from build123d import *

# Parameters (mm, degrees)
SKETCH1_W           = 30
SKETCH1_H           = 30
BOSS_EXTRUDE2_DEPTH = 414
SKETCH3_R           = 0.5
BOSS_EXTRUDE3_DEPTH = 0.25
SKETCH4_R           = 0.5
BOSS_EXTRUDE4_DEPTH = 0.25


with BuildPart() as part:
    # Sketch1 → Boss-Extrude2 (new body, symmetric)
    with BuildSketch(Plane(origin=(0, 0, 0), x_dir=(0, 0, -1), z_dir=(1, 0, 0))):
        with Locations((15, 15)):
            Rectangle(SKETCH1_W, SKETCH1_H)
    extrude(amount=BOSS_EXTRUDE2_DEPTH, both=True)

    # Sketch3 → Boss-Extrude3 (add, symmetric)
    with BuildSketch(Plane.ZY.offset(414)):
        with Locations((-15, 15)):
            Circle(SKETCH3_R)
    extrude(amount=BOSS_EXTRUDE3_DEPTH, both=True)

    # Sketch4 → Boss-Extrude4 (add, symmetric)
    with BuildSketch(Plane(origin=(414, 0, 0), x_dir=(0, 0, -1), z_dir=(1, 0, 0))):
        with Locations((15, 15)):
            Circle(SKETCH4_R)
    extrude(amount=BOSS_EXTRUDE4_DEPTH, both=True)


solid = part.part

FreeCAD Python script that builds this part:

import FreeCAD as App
import Part
import Sketcher

V = App.Vector
Q = App.Units.Quantity


def add_polygon(sketch, points):
    """Adds a closed chain of lines whose ends are joined by coincident constraints."""
    first, n = sketch.GeometryCount, len(points)
    for a, b in zip(points, points[1:] + points[:1]):
        sketch.addGeometry(Part.LineSegment(App.Vector(*a, 0), App.Vector(*b, 0)), False)
    for i in range(n):
        sketch.addConstraint(Sketcher.Constraint("Coincident", first + i, 2, first + (i + 1) % n, 1))

doc = App.newDocument("Part")
params = doc.addObject("Spreadsheet::Sheet", "Params")
for row, (alias, value) in enumerate([
    ("sketch1_width", "30 mm"),
    ("pad1_length", "828 mm"),
    ("sketch2_diameter", "1 mm"),
    ("pad2_length", "0.5 mm"),
    ("sketch3_diameter", "1 mm"),
    ("pad3_length", "0.5 mm"),
], start=1):
    params.set(f"A{row}", alias)
    params.set(f"B{row}", "=" + value)
    params.setAlias(f"B{row}", alias)

body = doc.addObject("PartDesign::Body", "Body")

sketch1 = doc.addObject("Sketcher::SketchObject", "Sketch")
body.addObject(sketch1)
sketch1.AttachmentSupport = (doc.YZ_Plane, [""])
sketch1.MapMode = "FlatFace"
add_polygon(sketch1, [(30, 0), (0, 0), (0, -30), (30, -30)])
sketch1.addConstraint(Sketcher.Constraint("Horizontal", 0))
sketch1.addConstraint(Sketcher.Constraint("Vertical", 1))
sketch1.addConstraint(Sketcher.Constraint("Horizontal", 2))
sketch1.addConstraint(Sketcher.Constraint("Vertical", 3))
sketch1.addConstraint(Sketcher.Constraint("Coincident", 0, 2, -1, 1))
sketch1.addConstraint(Sketcher.Constraint("Equal", 2, 1))
sketch1.addConstraint(Sketcher.Constraint("DistanceX", 0, 2, 0, 1, Q("30 mm")))
sketch1.setExpression("Constraints[10]", "Params.sketch1_width")
pad1 = doc.addObject("PartDesign::Pad", "Pad")
body.addObject(pad1)
pad1.Profile = sketch1
pad1.setExpression("Length", "Params.pad1_length")
pad1.Midplane = True

sketch2 = doc.addObject("Sketcher::SketchObject", "Sketch001")
body.addObject(sketch2)
sketch2.AttachmentSupport = (doc.YZ_Plane, [""])
sketch2.MapMode = "FlatFace"
sketch2.AttachmentOffset = App.Placement(V(0, 0, -414), App.Rotation())
sketch2.addGeometry(Part.Circle(V(15, -15, 0), V(0, 0, 1), 0.5), False)
sketch2.addConstraint(Sketcher.Constraint("Diameter", 0, Q("1 mm")))
sketch2.addConstraint(Sketcher.Constraint("DistanceX", -1, 1, 0, 3, Q("15 mm")))
sketch2.addConstraint(Sketcher.Constraint("DistanceY", 0, 3, -1, 1, Q("15 mm")))
sketch2.setExpression("Constraints[0]", "Params.sketch2_diameter")
pad2 = doc.addObject("PartDesign::Pad", "Pad001")
body.addObject(pad2)
pad2.Profile = sketch2
pad2.setExpression("Length", "Params.pad2_length")
pad2.Midplane = True

sketch3 = doc.addObject("Sketcher::SketchObject", "Sketch002")
body.addObject(sketch3)
sketch3.AttachmentSupport = (doc.YZ_Plane, [""])
sketch3.MapMode = "FlatFace"
sketch3.AttachmentOffset = App.Placement(V(0, 0, 414), App.Rotation())
sketch3.addGeometry(Part.Circle(V(15, -15, 0), V(0, 0, 1), 0.5), False)
sketch3.addConstraint(Sketcher.Constraint("Diameter", 0, Q("1 mm")))
sketch3.addConstraint(Sketcher.Constraint("DistanceX", -1, 1, 0, 3, Q("15 mm")))
sketch3.addConstraint(Sketcher.Constraint("DistanceY", 0, 3, -1, 1, Q("15 mm")))
sketch3.setExpression("Constraints[0]", "Params.sketch3_diameter")
pad3 = doc.addObject("PartDesign::Pad", "Pad002")
body.addObject(pad3)
pad3.Profile = sketch3
pad3.setExpression("Length", "Params.pad3_length")
pad3.Midplane = True

doc.recompute()
